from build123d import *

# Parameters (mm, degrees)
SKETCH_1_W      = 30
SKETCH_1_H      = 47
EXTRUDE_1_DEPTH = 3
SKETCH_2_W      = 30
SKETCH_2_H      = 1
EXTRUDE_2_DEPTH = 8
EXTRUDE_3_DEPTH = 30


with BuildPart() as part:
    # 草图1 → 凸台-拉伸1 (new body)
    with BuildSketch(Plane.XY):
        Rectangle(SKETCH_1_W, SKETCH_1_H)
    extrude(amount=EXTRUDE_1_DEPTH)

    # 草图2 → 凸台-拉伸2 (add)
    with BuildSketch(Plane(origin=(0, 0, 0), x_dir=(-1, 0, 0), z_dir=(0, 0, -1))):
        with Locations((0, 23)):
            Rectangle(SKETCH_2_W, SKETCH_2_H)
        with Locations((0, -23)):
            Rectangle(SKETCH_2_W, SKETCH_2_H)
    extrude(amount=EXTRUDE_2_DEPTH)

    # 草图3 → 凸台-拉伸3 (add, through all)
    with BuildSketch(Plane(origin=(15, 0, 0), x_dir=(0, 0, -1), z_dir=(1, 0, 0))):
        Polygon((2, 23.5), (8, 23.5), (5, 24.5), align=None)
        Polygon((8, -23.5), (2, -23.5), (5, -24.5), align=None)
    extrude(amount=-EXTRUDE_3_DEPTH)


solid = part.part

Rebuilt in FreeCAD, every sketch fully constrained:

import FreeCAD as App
import Part
import Sketcher

V = App.Vector


def add_polygon(sketch, points):
    """Adds a closed chain of lines whose ends are joined by coincident constraints."""
    first, n = sketch.GeometryCount, len(points)
    for a, b in zip(points, points[1:] + points[:1]):
        sketch.addGeometry(Part.LineSegment(App.Vector(*a, 0), App.Vector(*b, 0)), False)
    for i in range(n):
        sketch.addConstraint(Sketcher.Constraint("Coincident", first + i, 2, first + (i + 1) % n, 1))

doc = App.newDocument("Part")
body = doc.addObject("PartDesign::Body", "Body")

# Sketch on XY plane
sketch1 = body.newObject("Sketcher::SketchObject", "Sketch")
sketch1.AttachmentSupport = (doc.getObject("XY_Plane"), [""])
sketch1.MapMode = "FlatFace"
add_polygon(sketch1, [(-15, 24), (-15, -24), (15, -24), (15, 24)])  # lines 0-3
sketch1.addConstraint(Sketcher.Constraint("Vertical", 0))
sketch1.addConstraint(Sketcher.Constraint("Horizontal", 1))
sketch1.addConstraint(Sketcher.Constraint("Vertical", 2))
sketch1.addConstraint(Sketcher.Constraint("Horizontal", 3))
sketch1.addConstraint(Sketcher.Constraint("Symmetric", 0, 2, 2, 2, -1, 1))
sketch1.addConstraint(Sketcher.Constraint("DistanceX", 1, 1, 1, 2, 30.0))
sketch1.addConstraint(Sketcher.Constraint("DistanceY", 0, 2, 0, 1, 47.0))
pad1 = body.newObject("PartDesign::Pad", "Pad")
pad1.Profile = sketch1
pad1.Length = 3

# Sketch on XY plane
sketch2 = body.newObject("Sketcher::SketchObject", "Sketch001")
sketch2.AttachmentSupport = (doc.getObject("XY_Plane"), [""])
sketch2.MapMode = "FlatFace"
add_polygon(sketch2, [(15, 23.5), (15, 22.5), (-15, 22.5), (-15, 23.5)])  # lines 0-3
add_polygon(sketch2, [(15, -22.5), (15, -23.5), (-15, -23.5), (-15, -22.5)])  # lines 4-7
sketch2.addConstraint(Sketcher.Constraint("Vertical", 0))
sketch2.addConstraint(Sketcher.Constraint("Horizontal", 1))
sketch2.addConstraint(Sketcher.Constraint("Vertical", 2))
sketch2.addConstraint(Sketcher.Constraint("Horizontal", 3))
sketch2.addConstraint(Sketcher.Constraint("Vertical", 4))
sketch2.addConstraint(Sketcher.Constraint("Horizontal", 5))
sketch2.addConstraint(Sketcher.Constraint("Vertical", 6))
sketch2.addConstraint(Sketcher.Constraint("Horizontal", 7))
sketch2.addConstraint(Sketcher.Constraint("Symmetric", 2, 2, 4, 2, -1, 1))
sketch2.addConstraint(Sketcher.Constraint("Symmetric", 0, 2, 6, 2, -1, 1))
sketch2.addConstraint(Sketcher.Constraint("Vertical", 3, 2, 4, 2))
sketch2.addConstraint(Sketcher.Constraint("DistanceX", 1, 2, 1, 1, 30.0))
sketch2.addConstraint(Sketcher.Constraint("DistanceY", 0, 2, 0, 1, 1.0))
sketch2.addConstraint(Sketcher.Constraint("DistanceY", 4, 2, 0, 2, 46.0))
pad2 = body.newObject("PartDesign::Pad", "Pad001")
pad2.Profile = sketch2
pad2.Length = 8
pad2.Reversed = True

# Sketch on YZ plane
sketch3 = body.newObject("Sketcher::SketchObject", "Sketch002")
sketch3.AttachmentSupport = (doc.getObject("YZ_Plane"), [""])
sketch3.MapMode = "FlatFace"
sketch3.AttachmentOffset = App.Placement(V(0, 0, 15), App.Rotation())
add_polygon(sketch3, [(23.5, -2), (23.5, -8), (24.5, -5)])  # lines 0-2
add_polygon(sketch3, [(-23.5, -8), (-23.5, -2), (-24.5, -5)])  # lines 3-5
sketch3.addConstraint(Sketcher.Constraint("Vertical", 0))
sketch3.addConstraint(Sketcher.Constraint("Vertical", 3))
sketch3.addConstraint(Sketcher.Constraint("Symmetric", 2, 2, 3, 2, -2))
sketch3.addConstraint(Sketcher.Constraint("Symmetric", 1, 2, 4, 2, -2))
sketch3.addConstraint(Sketcher.Constraint("Parallel", 1, 4))
sketch3.addConstraint(Sketcher.Constraint("Parallel", 2, 5))
sketch3.addConstraint(Sketcher.Constraint("DistanceY", 0, 2, 0, 1, 6.0))
sketch3.addConstraint(Sketcher.Constraint("DistanceY", 0, 2, -1, 1, 8.0))
sketch3.addConstraint(Sketcher.Constraint("DistanceX", 0, 2, 1, 2, 1.0))
sketch3.addConstraint(Sketcher.Constraint("DistanceX", 3, 2, 2, 2, 47.0))
pad3 = body.newObject("PartDesign::Pad", "Pad002")
pad3.Profile = sketch3
pad3.Length = 30
pad3.Reversed = True

doc.recompute()
